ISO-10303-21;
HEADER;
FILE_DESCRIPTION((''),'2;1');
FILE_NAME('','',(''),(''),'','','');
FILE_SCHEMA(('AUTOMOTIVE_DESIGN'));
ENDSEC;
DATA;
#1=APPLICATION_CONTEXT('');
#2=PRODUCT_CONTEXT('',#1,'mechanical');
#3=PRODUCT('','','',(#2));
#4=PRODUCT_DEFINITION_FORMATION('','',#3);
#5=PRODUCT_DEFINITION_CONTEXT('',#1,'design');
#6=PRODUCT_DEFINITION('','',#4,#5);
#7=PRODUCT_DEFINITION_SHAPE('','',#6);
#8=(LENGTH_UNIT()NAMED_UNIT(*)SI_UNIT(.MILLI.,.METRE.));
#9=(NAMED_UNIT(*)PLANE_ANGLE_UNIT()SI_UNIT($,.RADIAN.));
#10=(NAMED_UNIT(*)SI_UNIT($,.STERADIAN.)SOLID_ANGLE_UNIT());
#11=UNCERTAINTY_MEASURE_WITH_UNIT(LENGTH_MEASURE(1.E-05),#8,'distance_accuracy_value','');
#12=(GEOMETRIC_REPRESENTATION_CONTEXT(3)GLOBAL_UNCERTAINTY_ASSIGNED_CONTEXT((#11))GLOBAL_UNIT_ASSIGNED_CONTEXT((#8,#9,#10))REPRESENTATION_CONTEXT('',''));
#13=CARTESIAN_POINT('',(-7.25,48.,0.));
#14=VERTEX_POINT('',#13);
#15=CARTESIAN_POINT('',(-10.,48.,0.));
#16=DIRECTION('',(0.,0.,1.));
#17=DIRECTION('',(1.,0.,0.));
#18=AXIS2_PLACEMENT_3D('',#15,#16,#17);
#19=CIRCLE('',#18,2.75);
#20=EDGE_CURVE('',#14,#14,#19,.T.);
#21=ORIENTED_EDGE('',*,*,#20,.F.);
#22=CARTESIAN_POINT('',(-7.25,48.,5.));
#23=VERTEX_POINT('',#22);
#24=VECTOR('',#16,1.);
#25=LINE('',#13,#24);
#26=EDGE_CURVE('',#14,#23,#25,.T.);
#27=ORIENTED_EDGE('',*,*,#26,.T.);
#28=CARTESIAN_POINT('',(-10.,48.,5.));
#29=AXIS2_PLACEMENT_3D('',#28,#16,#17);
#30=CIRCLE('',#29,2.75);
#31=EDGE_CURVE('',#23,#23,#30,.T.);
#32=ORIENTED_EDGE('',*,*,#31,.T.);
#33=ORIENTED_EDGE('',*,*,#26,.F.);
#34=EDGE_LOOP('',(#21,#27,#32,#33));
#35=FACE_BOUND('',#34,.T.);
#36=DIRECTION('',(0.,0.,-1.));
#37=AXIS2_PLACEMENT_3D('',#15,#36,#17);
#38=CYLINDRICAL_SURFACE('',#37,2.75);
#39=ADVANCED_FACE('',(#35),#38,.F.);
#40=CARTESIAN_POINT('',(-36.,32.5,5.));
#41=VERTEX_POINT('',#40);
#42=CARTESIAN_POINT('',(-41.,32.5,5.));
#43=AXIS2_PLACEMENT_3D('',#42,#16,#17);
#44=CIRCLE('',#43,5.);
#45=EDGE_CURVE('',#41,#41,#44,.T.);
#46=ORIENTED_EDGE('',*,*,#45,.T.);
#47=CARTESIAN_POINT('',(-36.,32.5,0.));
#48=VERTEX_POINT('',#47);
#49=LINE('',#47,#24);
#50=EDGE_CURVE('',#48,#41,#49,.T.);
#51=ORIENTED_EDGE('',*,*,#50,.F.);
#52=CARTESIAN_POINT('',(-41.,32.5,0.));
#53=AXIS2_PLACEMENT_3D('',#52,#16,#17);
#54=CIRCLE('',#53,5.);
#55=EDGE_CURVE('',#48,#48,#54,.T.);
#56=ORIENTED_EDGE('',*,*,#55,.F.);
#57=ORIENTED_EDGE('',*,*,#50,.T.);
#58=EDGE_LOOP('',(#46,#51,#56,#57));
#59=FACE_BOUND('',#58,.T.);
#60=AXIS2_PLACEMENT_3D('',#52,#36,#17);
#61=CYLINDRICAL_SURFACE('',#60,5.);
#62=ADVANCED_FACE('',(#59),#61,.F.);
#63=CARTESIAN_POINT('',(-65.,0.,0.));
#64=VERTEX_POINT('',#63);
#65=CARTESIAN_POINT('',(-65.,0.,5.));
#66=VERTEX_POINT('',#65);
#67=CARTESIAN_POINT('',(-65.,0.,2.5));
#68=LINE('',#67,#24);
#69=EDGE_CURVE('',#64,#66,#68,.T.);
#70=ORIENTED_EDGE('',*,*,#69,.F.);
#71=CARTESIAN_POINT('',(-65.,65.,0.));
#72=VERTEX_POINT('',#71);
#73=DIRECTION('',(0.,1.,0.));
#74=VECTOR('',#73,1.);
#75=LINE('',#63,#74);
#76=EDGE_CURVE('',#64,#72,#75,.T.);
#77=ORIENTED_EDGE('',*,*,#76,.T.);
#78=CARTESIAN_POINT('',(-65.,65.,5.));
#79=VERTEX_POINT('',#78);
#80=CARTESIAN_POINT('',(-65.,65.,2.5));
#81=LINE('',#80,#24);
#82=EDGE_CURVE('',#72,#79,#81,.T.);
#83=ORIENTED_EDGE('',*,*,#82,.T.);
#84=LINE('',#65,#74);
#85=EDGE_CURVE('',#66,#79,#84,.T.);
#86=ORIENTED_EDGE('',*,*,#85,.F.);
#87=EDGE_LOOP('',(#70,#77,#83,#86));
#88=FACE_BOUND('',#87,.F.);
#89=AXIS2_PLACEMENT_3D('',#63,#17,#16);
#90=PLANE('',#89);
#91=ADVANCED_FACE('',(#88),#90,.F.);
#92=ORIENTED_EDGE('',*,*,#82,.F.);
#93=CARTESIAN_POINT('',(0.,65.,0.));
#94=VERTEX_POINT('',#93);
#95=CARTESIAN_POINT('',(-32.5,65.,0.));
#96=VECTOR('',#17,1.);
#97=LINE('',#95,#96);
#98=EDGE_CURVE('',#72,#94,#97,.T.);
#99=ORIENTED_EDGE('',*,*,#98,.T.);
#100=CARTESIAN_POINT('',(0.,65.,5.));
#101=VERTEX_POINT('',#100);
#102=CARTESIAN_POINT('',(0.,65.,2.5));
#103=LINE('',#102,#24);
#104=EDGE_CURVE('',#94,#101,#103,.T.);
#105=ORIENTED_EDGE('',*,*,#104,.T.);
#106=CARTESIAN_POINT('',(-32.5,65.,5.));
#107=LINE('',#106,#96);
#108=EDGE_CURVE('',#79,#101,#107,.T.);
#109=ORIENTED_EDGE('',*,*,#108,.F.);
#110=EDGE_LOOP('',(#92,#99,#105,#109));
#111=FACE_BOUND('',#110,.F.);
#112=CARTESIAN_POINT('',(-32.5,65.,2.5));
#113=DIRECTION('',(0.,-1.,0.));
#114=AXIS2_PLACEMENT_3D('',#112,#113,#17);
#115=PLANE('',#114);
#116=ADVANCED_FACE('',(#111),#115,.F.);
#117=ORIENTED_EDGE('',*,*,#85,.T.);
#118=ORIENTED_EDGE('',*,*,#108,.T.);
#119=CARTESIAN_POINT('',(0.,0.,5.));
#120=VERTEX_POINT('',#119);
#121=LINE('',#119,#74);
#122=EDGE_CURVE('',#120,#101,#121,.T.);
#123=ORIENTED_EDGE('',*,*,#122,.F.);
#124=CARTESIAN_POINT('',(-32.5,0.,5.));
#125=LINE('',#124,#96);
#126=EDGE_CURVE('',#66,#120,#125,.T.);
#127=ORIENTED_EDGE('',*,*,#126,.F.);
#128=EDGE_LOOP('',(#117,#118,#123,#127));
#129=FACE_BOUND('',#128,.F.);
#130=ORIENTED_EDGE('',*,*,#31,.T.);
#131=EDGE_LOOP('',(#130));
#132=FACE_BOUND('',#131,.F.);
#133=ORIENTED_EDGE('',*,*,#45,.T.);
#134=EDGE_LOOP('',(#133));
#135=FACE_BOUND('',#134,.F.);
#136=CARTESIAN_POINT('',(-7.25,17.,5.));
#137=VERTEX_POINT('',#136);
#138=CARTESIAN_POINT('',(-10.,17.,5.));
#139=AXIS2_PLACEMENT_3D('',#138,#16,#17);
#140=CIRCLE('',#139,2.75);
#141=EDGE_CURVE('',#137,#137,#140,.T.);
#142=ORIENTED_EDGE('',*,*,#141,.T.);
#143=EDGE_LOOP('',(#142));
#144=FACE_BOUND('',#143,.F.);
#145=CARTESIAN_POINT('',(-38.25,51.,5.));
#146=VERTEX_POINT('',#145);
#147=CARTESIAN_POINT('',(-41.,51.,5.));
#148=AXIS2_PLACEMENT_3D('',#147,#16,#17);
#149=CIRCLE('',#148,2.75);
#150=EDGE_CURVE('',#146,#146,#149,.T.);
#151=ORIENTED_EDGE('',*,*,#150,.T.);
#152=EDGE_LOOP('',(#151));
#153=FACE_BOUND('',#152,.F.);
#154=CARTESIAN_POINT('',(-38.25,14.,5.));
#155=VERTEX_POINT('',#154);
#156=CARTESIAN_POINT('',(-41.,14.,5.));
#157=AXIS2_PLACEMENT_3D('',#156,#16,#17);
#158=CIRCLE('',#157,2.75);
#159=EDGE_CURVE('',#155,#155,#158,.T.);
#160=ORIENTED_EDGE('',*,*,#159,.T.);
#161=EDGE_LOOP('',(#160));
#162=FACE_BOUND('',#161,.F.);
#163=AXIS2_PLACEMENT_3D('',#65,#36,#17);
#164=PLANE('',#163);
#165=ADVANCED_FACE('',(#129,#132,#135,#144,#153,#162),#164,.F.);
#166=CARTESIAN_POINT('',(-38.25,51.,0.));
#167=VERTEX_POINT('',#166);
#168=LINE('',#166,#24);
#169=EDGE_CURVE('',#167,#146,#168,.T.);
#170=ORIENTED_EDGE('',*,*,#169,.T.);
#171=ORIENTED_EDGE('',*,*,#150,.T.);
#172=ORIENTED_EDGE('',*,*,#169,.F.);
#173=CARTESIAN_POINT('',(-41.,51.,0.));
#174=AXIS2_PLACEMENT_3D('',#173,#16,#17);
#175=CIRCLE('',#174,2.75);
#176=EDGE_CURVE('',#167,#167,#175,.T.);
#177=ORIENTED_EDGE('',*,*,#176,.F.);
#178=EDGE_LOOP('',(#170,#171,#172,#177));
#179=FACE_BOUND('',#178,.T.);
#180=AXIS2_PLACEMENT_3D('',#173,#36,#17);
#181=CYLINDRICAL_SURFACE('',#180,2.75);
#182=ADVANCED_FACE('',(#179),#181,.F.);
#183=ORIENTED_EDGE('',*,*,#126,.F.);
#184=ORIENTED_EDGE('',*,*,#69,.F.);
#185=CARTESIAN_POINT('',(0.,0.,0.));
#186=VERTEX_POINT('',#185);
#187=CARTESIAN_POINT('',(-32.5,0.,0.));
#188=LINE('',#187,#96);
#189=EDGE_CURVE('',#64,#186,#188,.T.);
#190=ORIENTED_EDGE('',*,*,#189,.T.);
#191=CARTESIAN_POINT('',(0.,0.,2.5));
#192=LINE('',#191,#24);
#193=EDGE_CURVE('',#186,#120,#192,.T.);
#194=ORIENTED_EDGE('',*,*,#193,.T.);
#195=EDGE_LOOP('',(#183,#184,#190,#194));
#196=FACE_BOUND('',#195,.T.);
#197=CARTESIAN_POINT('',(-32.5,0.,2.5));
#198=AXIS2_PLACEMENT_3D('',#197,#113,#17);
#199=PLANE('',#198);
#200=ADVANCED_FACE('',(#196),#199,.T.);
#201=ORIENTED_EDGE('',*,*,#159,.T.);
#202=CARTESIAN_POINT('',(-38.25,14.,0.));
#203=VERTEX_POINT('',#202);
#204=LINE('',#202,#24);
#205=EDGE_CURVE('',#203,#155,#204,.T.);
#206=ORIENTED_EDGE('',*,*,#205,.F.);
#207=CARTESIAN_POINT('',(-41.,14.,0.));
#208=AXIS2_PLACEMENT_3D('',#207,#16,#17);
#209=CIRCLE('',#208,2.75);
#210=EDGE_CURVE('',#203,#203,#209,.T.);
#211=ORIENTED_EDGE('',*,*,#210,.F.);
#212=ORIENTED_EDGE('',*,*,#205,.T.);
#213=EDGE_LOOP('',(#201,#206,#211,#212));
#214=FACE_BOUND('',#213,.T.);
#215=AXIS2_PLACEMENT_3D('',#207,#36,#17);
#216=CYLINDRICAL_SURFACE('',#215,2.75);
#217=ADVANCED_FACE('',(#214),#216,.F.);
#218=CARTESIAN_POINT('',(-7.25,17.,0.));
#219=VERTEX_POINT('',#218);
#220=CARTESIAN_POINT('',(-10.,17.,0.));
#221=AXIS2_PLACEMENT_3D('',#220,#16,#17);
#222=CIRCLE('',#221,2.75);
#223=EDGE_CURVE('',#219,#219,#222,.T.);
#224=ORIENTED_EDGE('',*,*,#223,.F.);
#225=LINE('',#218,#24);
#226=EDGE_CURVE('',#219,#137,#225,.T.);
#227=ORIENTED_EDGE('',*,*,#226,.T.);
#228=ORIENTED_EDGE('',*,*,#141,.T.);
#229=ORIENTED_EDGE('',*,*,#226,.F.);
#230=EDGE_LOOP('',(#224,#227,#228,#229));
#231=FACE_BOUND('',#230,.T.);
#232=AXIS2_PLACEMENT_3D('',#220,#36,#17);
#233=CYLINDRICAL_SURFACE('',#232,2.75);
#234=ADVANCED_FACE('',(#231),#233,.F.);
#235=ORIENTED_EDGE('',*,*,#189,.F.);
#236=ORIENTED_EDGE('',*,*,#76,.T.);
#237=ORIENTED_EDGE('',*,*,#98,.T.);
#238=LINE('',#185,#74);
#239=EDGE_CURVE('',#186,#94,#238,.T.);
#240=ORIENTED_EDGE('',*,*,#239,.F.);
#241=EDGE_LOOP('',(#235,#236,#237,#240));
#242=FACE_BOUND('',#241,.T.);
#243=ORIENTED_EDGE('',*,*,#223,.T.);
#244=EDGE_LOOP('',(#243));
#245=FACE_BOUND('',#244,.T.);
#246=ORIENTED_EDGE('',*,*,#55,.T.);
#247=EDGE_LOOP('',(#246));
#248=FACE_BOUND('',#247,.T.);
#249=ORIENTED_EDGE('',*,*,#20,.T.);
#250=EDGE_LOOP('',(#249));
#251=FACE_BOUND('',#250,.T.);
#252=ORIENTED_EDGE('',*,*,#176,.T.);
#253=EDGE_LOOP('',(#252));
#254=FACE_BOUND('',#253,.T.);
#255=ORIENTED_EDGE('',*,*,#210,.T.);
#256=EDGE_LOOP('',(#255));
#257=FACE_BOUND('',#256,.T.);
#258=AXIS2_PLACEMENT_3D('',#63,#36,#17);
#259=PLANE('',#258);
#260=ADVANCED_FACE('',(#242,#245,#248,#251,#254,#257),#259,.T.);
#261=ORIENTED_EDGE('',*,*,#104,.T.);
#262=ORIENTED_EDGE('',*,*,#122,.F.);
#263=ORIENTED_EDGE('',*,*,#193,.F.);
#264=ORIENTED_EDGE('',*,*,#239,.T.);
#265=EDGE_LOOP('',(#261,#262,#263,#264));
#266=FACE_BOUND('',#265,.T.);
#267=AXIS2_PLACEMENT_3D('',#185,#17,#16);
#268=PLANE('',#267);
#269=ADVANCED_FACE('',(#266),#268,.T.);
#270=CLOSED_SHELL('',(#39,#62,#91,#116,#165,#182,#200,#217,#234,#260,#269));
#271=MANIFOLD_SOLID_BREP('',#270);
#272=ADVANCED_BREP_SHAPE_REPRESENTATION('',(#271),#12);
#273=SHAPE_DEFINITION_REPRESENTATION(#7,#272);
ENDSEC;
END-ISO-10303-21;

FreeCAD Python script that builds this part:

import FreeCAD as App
import Part
import Sketcher

V = App.Vector


def add_polygon(sketch, points):
    """Adds a closed chain of lines whose ends are joined by coincident constraints."""
    first, n = sketch.GeometryCount, len(points)
    for a, b in zip(points, points[1:] + points[:1]):
        sketch.addGeometry(Part.LineSegment(App.Vector(*a, 0), App.Vector(*b, 0)), False)
    for i in range(n):
        sketch.addConstraint(Sketcher.Constraint("Coincident", first + i, 2, first + (i + 1) % n, 1))

doc = App.newDocument("Part")
body = doc.addObject("PartDesign::Body", "Body")

# Sketch on XZ plane
sketch1 = doc.addObject("Sketcher::SketchObject", "Sketch")
body.addObject(sketch1)
sketch1.AttachmentSupport = (doc.XZ_Plane, [""])
sketch1.MapMode = "FlatFace"
add_polygon(sketch1, [(-65, 5), (-65, 0), (0, 0), (0, 5)])  # lines 0-3
sketch1.addConstraint(Sketcher.Constraint("Vertical", 0))
sketch1.addConstraint(Sketcher.Constraint("Horizontal", 1))
sketch1.addConstraint(Sketcher.Constraint("Vertical", 2))
sketch1.addConstraint(Sketcher.Constraint("Horizontal", 3))
sketch1.addConstraint(Sketcher.Constraint("Coincident", 1, 2, -1, 1))
sketch1.addConstraint(Sketcher.Constraint("DistanceX", 1, 1, 1, 2, 65.0))
sketch1.addConstraint(Sketcher.Constraint("DistanceY", 0, 2, 0, 1, 5.0))
pad1 = doc.addObject("PartDesign::Pad", "Pad")
body.addObject(pad1)
pad1.Profile = sketch1
pad1.Length = 65
pad1.Reversed = True

# Sketch on XY plane
sketch2 = doc.addObject("Sketcher::SketchObject", "Sketch001")
body.addObject(sketch2)
sketch2.AttachmentSupport = (doc.XY_Plane, [""])
sketch2.MapMode = "FlatFace"
sketch2.addGeometry(Part.Circle(V(-10, 48, 0), V(0, 0, 1), 2.8), False)
sketch2.addGeometry(Part.Circle(V(-10, 17, 0), V(0, 0, 1), 2.8), False)
sketch2.addGeometry(Part.Circle(V(-41, 51, 0), V(0, 0, 1), 2.8), False)
sketch2.addGeometry(Part.Circle(V(-41, 14, 0), V(0, 0, 1), 2.8), False)
sketch2.addGeometry(Part.Circle(V(-41, 32.5, 0), V(0, 0, 1), 5), False)
sketch2.addConstraint(Sketcher.Constraint("Equal", 0, 1))
sketch2.addConstraint(Sketcher.Constraint("Equal", 1, 2))
sketch2.addConstraint(Sketcher.Constraint("Equal", 2, 3))
sketch2.addConstraint(Sketcher.Constraint("Vertical", 0, 3, 1, 3))
sketch2.addConstraint(Sketcher.Constraint("Vertical", 2, 3, 3, 3))
sketch2.addConstraint(Sketcher.Constraint("Vertical", 3, 3, 4, 3))
sketch2.addConstraint(Sketcher.Constraint("Diameter", 4, 10.0))
sketch2.addConstraint(Sketcher.Constraint("Diameter", 0, 5.5))
sketch2.addConstraint(Sketcher.Constraint("DistanceX", 0, 3, -1, 1, 10.0))
sketch2.addConstraint(Sketcher.Constraint("DistanceY", -1, 1, 0, 3, 48.0))
sketch2.addConstraint(Sketcher.Constraint("DistanceY", -1, 1, 1, 3, 17.0))
sketch2.addConstraint(Sketcher.Constraint("DistanceX", 2, 3, -1, 1, 41.0))
sketch2.addConstraint(Sketcher.Constraint("DistanceY", -1, 1, 2, 3, 51.0))
sketch2.addConstraint(Sketcher.Constraint("DistanceY", -1, 1, 3, 3, 14.0))
sketch2.addConstraint(Sketcher.Constraint("DistanceY", -1, 1, 4, 3, 32.5))
pocket1 = doc.addObject("PartDesign::Pocket", "Pocket")
body.addObject(pocket1)
pocket1.Profile = sketch2
pocket1.Length = 5
pocket1.Reversed = True

doc.recompute()
